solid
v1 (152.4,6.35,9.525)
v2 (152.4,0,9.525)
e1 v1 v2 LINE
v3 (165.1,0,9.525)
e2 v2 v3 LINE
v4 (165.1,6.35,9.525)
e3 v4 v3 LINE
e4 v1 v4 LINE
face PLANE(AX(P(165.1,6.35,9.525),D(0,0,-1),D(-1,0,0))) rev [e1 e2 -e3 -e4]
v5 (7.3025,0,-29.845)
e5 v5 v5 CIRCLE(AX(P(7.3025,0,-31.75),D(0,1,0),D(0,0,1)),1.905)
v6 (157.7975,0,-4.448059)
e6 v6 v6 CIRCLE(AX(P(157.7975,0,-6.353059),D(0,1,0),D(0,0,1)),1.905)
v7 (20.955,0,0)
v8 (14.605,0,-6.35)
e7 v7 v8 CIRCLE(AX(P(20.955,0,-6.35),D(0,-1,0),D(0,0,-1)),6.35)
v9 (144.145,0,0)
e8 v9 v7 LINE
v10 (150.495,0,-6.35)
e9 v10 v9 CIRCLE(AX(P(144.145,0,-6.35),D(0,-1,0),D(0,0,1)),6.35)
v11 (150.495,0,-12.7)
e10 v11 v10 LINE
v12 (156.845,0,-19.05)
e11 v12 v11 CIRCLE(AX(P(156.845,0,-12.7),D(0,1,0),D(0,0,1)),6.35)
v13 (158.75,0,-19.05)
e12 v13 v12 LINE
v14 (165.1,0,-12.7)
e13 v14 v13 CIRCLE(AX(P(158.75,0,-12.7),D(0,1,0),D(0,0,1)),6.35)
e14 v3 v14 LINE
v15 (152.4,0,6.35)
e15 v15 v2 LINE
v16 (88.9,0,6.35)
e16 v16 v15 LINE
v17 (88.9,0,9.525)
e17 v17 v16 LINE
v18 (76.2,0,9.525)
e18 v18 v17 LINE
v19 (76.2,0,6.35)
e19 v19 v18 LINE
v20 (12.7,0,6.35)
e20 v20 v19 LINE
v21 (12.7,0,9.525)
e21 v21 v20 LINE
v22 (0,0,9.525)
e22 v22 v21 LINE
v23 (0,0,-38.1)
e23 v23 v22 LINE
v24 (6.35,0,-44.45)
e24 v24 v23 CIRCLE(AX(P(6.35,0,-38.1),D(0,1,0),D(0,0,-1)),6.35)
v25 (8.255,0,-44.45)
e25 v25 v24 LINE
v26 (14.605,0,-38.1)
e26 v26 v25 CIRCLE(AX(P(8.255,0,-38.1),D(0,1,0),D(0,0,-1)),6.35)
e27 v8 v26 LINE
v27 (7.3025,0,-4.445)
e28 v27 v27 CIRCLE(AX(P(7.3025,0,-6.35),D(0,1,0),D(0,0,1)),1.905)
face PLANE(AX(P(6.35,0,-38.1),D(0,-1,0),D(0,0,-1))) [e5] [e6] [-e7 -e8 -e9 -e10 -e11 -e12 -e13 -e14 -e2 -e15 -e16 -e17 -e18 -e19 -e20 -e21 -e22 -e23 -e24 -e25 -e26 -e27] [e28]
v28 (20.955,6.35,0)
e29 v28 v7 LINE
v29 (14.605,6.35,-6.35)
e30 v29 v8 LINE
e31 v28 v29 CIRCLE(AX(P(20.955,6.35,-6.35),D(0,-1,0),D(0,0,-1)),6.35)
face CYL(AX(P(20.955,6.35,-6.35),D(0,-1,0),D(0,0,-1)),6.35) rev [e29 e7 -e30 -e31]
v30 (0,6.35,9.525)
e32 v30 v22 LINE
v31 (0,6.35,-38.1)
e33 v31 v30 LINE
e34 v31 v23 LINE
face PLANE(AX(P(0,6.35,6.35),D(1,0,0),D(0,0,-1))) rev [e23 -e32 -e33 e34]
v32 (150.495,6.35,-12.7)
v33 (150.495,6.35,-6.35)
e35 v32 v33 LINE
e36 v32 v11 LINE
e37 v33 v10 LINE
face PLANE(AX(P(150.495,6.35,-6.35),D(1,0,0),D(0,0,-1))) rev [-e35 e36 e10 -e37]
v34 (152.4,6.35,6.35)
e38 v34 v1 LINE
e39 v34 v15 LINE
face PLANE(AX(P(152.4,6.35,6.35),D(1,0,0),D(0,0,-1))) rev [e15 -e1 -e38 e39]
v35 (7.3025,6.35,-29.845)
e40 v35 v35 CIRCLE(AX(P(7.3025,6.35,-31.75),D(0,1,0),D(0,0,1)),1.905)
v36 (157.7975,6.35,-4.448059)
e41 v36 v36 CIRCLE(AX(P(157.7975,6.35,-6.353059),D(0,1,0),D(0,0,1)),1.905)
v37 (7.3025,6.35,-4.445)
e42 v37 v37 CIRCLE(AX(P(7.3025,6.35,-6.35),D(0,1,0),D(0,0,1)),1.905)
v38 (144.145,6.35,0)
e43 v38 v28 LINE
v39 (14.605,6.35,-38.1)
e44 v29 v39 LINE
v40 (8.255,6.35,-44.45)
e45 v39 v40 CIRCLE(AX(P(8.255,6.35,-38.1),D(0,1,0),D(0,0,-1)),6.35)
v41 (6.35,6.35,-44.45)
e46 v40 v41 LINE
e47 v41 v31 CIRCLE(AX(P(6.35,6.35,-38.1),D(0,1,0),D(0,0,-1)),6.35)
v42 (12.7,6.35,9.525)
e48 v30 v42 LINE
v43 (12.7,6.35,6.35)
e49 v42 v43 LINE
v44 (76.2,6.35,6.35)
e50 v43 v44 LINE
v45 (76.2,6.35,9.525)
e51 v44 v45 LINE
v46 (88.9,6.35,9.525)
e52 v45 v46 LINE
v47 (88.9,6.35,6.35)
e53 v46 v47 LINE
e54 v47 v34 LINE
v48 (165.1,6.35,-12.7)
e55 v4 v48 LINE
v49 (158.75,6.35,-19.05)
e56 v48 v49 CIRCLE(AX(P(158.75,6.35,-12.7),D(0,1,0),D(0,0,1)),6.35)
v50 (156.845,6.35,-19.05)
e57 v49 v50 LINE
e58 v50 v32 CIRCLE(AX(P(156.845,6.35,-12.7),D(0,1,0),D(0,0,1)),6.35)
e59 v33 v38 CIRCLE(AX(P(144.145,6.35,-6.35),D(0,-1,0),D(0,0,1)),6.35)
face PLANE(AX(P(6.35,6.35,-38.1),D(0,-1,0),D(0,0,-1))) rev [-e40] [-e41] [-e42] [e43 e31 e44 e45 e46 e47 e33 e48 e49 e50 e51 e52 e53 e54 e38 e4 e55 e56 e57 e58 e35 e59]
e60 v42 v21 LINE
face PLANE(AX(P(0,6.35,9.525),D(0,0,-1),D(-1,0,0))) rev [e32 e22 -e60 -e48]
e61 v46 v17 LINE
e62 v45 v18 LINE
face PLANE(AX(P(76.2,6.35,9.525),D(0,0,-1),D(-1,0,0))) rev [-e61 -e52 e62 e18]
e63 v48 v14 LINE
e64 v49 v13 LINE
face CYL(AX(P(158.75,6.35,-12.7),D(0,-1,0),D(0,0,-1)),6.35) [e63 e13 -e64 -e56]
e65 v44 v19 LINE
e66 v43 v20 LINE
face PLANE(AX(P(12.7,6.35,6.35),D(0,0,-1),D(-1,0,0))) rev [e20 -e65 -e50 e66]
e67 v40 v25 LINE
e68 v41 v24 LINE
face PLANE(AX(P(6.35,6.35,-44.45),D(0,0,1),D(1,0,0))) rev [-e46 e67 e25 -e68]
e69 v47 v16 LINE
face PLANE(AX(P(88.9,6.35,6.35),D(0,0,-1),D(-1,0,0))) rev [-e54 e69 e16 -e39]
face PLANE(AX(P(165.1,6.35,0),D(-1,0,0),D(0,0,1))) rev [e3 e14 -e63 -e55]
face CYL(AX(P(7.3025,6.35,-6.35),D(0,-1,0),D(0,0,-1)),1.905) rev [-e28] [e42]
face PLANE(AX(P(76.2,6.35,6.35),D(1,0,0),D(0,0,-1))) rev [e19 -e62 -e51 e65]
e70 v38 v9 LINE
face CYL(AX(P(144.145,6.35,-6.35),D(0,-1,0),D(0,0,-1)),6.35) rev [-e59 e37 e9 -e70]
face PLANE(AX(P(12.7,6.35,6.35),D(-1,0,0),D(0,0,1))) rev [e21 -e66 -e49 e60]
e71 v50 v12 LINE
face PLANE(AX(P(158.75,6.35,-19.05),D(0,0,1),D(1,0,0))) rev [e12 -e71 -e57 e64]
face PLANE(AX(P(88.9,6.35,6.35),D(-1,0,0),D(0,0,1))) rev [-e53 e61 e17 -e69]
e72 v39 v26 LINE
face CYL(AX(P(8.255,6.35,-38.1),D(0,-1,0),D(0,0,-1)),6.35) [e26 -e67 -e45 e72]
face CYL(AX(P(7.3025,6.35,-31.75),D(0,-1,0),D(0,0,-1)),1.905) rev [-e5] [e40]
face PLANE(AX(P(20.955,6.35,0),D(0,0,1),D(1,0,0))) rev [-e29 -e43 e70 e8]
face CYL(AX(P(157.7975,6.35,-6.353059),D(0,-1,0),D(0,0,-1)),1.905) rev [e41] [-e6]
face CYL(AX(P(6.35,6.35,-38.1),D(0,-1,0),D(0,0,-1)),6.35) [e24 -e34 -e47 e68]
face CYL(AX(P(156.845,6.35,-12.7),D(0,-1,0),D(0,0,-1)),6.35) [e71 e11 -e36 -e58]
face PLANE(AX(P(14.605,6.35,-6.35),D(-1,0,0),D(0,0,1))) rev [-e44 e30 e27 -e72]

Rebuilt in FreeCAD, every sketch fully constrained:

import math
import FreeCAD as App
import Part
import Sketcher

V = App.Vector
Q = App.Units.Quantity

doc = App.newDocument("Part")
params = doc.addObject("Spreadsheet::Sheet", "Params")
for row, (alias, value) in enumerate([
    ("sketch1_diameter", "0.15 in"),
    ("sketch1_radius", "0.25 in"),
    ("sketch1_width", "2.5 in"),
    ("sketch1_width2", "0.5 in"),
    ("sketch1_width3", "4.85 in"),
    ("pad1_length", "0.25 in"),
], start=1):
    params.set(f"A{row}", alias)
    params.set(f"B{row}", "=" + value)
    params.setAlias(f"B{row}", alias)

body = doc.addObject("PartDesign::Body", "Body")

# Sketch on XZ plane
sketch1 = body.newObject("Sketcher::SketchObject", "Sketch")
sketch1.AttachmentSupport = (doc.getObject("XZ_Plane"), [""])
sketch1.MapMode = "FlatFace"
sketch1.addGeometry([
    Part.LineSegment(V(88.9, 6.3, 0), V(152.4, 6.3, 0)),  # 0
    Part.LineSegment(V(152.4, 6.3, 0), V(152.4, 9.5, 0)),  # 1
    Part.LineSegment(V(152.4, 9.5, 0), V(165.1, 9.5, 0)),  # 2
    Part.LineSegment(V(165.1, 9.5, 0), V(165.1, -12.7, 0)),  # 3
    Part.ArcOfCircle(Part.Circle(V(158.8, -12.7, 0), V(0, 0, 1), 6.3), math.radians(-90), math.radians(0)),  # 4
    Part.LineSegment(V(158.8, -19.1, 0), V(156.8, -19.1, 0)),  # 5
    Part.ArcOfCircle(Part.Circle(V(156.8, -12.7, 0), V(0, 0, 1), 6.3), math.radians(180), math.radians(270)),  # 6
    Part.LineSegment(V(150.5, -12.7, 0), V(150.5, -6.3, 0)),  # 7
    Part.ArcOfCircle(Part.Circle(V(144.1, -6.3, 0), V(0, 0, 1), 6.3), math.radians(0), math.radians(90)),  # 8
    Part.LineSegment(V(144.1, 0, 0), V(21, 0, 0)),  # 9
    Part.ArcOfCircle(Part.Circle(V(21, -6.3, 0), V(0, 0, 1), 6.3), math.radians(90), math.radians(180)),  # 10
    Part.LineSegment(V(14.6, -6.3, 0), V(14.6, -38.1, 0)),  # 11
    Part.ArcOfCircle(Part.Circle(V(8.3, -38.1, 0), V(0, 0, 1), 6.3), math.radians(-90), math.radians(0)),  # 12
    Part.LineSegment(V(8.3, -44.5, 0), V(6.3, -44.5, 0)),  # 13
    Part.ArcOfCircle(Part.Circle(V(6.3, -38.1, 0), V(0, 0, 1), 6.3), math.radians(180), math.radians(270)),  # 14
    Part.LineSegment(V(0, -38.1, 0), V(0, 9.5, 0)),  # 15
    Part.LineSegment(V(0, 9.5, 0), V(12.7, 9.5, 0)),  # 16
    Part.LineSegment(V(12.7, 9.5, 0), V(12.7, 6.3, 0)),  # 17
    Part.LineSegment(V(12.7, 6.3, 0), V(76.2, 6.3, 0)),  # 18
    Part.LineSegment(V(76.2, 6.3, 0), V(76.2, 9.5, 0)),  # 19
    Part.LineSegment(V(76.2, 9.5, 0), V(88.9, 9.5, 0)),  # 20
    Part.LineSegment(V(88.9, 9.5, 0), V(88.9, 6.3, 0)),  # 21
    Part.Circle(V(7.3, -6.3, 0), V(0, 0, 1), 1.9),  # 22
    Part.Circle(V(157.8, -6.4, 0), V(0, 0, 1), 1.9),  # 23
    Part.Circle(V(7.3, -31.8, 0), V(0, 0, 1), 1.9),  # 24
], False)
sketch1.addConstraint([
    Sketcher.Constraint("Coincident", 0, 2, 1, 1),
    Sketcher.Constraint("Coincident", 1, 2, 2, 1),
    Sketcher.Constraint("Coincident", 2, 2, 3, 1),
    Sketcher.Constraint("Tangent", 3, 2, 4, 2),
    Sketcher.Constraint("Tangent", 4, 1, 5, 1),
    Sketcher.Constraint("Tangent", 5, 2, 6, 2),
    Sketcher.Constraint("Tangent", 6, 1, 7, 1),
    Sketcher.Constraint("Tangent", 7, 2, 8, 1),
    Sketcher.Constraint("Tangent", 8, 2, 9, 1),
    Sketcher.Constraint("Tangent", 9, 2, 10, 1),
    Sketcher.Constraint("Tangent", 10, 2, 11, 1),
    Sketcher.Constraint("Tangent", 11, 2, 12, 2),
    Sketcher.Constraint("Tangent", 12, 1, 13, 1),
    Sketcher.Constraint("Tangent", 13, 2, 14, 2),
    Sketcher.Constraint("Tangent", 14, 1, 15, 1),
    Sketcher.Constraint("Coincident", 15, 2, 16, 1),
    Sketcher.Constraint("Coincident", 16, 2, 17, 1),
    Sketcher.Constraint("Coincident", 17, 2, 18, 1),
    Sketcher.Constraint("Coincident", 18, 2, 19, 1),
    Sketcher.Constraint("Coincident", 19, 2, 20, 1),
    Sketcher.Constraint("Coincident", 20, 2, 21, 1),
    Sketcher.Constraint("Coincident", 21, 2, 0, 1),
    Sketcher.Constraint("Horizontal", 0),
    Sketcher.Constraint("Vertical", 1),
    Sketcher.Constraint("Horizontal", 2),
    Sketcher.Constraint("Vertical", 3),
    Sketcher.Constraint("Horizontal", 5),
    Sketcher.Constraint("Vertical", 7),
    Sketcher.Constraint("Horizontal", 9),
    Sketcher.Constraint("Vertical", 11),
    Sketcher.Constraint("Horizontal", 13),
    Sketcher.Constraint("Vertical", 15),
    Sketcher.Constraint("Horizontal", 16),
    Sketcher.Constraint("Vertical", 17),
    Sketcher.Constraint("Horizontal", 18),
    Sketcher.Constraint("Vertical", 19),
    Sketcher.Constraint("Horizontal", 20),
    Sketcher.Constraint("Vertical", 21),
    Sketcher.Constraint("Equal", 4, 6),
    Sketcher.Constraint("Equal", 6, 8),
    Sketcher.Constraint("Equal", 8, 10),
    Sketcher.Constraint("Equal", 10, 12),
    Sketcher.Constraint("Equal", 12, 14),
    Sketcher.Constraint("Equal", 22, 23),
    Sketcher.Constraint("Equal", 23, 24),
    Sketcher.Constraint("PointOnObject", 8, 2, -1),
    Sketcher.Constraint("PointOnObject", 14, 1, -2),
    Sketcher.Constraint("Horizontal", 10, 3, 22, 3),
    Sketcher.Constraint("Horizontal", 2, 2, 15, 2),
    Sketcher.Constraint("Horizontal", 0, 2, 17, 2),
    Sketcher.Constraint("Horizontal", 16, 2, 19, 2),
    Sketcher.Constraint("Vertical", 22, 3, 24, 3),
    Sketcher.Constraint("Equal", 5, 13),
    Sketcher.Constraint("Equal", 2, 16),
    Sketcher.Constraint("Equal", 0, 18),
    Sketcher.Constraint("Equal", 16, 20),
    Sketcher.Constraint("Diameter", 22, Q("0.15 in")),
    Sketcher.Constraint("Radius", 4, Q("0.25 in")),
    Sketcher.Constraint("DistanceX", 0, 1, 0, 2, Q("2.5 in")),
    Sketcher.Constraint("DistanceX", 2, 1, 2, 2, Q("0.5 in")),
    Sketcher.Constraint("DistanceY", 12, 3, 6, 3, Q("1 in")),
    Sketcher.Constraint("DistanceY", 24, 3, 22, 3, Q("1 in")),
    Sketcher.Constraint("DistanceX", 9, 2, 9, 1, Q("4.85 in")),
    Sketcher.Constraint("DistanceY", 7, 1, 7, 2, Q("0.25 in")),
    Sketcher.Constraint("DistanceY", 8, 3, 0, 2, Q("0.5 in")),
    Sketcher.Constraint("DistanceY", 1, 1, 1, 2, Q("0.125 in")),
    Sketcher.Constraint("DistanceX", 22, 3, 23, 3, Q("5.925 in")),
    Sketcher.Constraint("DistanceX", -1, 1, 22, 3, Q("0.2875 in")),
    Sketcher.Constraint("DistanceY", 23, 3, -1, 1, Q("6.353059 mm")),
])
sketch1.setExpression("Constraints[56]", "Params.sketch1_diameter")
sketch1.setExpression("Constraints[57]", "Params.sketch1_radius")
sketch1.setExpression("Constraints[58]", "Params.sketch1_width")
sketch1.setExpression("Constraints[59]", "Params.sketch1_width2")
sketch1.setExpression("Constraints[62]", "Params.sketch1_width3")
pad1 = body.newObject("PartDesign::Pad", "Pad")
pad1.Profile = sketch1
pad1.setExpression("Length", "Params.pad1_length")
pad1.Reversed = True

doc.recompute()
